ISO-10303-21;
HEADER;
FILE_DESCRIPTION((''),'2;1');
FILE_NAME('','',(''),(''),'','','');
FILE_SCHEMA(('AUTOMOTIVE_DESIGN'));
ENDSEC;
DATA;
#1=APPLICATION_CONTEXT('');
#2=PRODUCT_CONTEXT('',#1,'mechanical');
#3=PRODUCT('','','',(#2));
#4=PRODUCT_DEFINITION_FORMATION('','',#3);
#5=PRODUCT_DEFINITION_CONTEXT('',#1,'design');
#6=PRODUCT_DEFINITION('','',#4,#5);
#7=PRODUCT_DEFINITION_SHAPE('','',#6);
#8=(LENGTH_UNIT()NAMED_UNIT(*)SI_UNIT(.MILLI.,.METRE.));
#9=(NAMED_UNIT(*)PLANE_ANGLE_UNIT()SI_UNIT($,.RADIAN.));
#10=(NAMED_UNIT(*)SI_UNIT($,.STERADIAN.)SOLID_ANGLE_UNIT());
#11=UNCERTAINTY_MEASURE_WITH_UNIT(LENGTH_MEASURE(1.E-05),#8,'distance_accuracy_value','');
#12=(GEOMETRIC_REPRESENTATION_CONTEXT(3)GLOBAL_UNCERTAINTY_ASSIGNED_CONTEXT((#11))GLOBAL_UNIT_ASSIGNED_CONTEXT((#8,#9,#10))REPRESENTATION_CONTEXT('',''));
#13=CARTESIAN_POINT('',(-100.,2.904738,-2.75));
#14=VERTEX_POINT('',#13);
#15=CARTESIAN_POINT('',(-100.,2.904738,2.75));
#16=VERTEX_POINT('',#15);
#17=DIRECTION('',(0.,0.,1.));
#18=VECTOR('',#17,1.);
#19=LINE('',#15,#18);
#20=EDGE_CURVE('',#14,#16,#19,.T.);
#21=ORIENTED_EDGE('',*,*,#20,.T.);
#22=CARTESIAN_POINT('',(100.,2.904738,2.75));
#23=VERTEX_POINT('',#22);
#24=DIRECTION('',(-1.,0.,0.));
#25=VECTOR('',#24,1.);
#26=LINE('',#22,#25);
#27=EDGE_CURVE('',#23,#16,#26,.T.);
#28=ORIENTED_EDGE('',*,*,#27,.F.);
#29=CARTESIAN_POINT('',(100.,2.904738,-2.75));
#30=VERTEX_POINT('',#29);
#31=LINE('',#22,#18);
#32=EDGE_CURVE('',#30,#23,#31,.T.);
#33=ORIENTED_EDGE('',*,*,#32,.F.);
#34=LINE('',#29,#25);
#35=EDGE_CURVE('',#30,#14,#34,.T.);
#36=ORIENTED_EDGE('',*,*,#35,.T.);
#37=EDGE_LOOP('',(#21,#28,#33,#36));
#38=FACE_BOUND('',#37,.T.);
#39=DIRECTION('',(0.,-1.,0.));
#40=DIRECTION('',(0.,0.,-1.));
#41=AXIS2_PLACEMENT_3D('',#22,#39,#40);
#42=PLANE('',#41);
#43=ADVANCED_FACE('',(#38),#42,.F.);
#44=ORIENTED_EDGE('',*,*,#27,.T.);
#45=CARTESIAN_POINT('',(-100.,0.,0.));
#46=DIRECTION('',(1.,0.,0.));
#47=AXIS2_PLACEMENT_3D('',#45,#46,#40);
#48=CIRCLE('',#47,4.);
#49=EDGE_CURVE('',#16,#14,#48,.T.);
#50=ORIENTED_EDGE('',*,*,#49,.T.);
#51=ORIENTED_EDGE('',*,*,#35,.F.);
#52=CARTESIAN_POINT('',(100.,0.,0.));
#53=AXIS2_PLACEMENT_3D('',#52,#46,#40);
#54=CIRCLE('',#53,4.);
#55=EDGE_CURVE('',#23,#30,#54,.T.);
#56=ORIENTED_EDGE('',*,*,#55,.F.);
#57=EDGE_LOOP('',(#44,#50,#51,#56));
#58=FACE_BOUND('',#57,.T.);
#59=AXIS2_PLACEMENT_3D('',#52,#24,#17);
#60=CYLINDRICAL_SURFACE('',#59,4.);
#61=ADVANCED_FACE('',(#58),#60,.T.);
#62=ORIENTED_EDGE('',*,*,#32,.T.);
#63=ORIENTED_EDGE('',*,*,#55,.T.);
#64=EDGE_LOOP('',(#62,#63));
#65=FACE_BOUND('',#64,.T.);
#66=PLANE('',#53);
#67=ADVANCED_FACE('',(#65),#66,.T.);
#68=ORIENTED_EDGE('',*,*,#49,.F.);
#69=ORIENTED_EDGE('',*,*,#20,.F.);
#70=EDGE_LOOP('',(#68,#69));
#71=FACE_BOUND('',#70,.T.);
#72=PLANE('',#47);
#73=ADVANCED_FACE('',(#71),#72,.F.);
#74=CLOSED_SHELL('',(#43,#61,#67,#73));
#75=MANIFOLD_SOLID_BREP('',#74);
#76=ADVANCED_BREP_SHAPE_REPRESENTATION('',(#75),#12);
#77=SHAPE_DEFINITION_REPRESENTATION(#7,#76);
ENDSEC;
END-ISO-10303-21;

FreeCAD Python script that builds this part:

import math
import FreeCAD as App
import Part
import Sketcher

doc = App.newDocument("Part")
body = doc.addObject("PartDesign::Body", "Body")

# Sketch on YZ plane
sketch1 = body.newObject("Sketcher::SketchObject", "Sketch")
sketch1.AttachmentSupport = (doc.getObject("YZ_Plane"), [""])
sketch1.MapMode = "FlatFace"
sketch1.addGeometry([
    Part.LineSegment(App.Vector(2.9, -2.8, 0), App.Vector(2.9, 2.8, 0)),
    Part.ArcOfCircle(Part.Circle(App.Vector(0, 0, 0), App.Vector(0, 0, 1), 4), math.radians(43), math.radians(317)),
], False)
sketch1.addConstraint([
    Sketcher.Constraint("Coincident", 0, 1, 1, 2),
    Sketcher.Constraint("Coincident", 1, 1, 0, 2),
    Sketcher.Constraint("Vertical", 0),
    Sketcher.Constraint("Coincident", 1, 3, -1, 1),
    Sketcher.Constraint("Radius", 1, 4.0),
    Sketcher.Constraint("DistanceY", 0, 1, 0, 2, 5.5),
])
pad1 = body.newObject("PartDesign::Pad", "Pad")
pad1.Profile = sketch1
pad1.Length = 200
pad1.Midplane = True

doc.recompute()
